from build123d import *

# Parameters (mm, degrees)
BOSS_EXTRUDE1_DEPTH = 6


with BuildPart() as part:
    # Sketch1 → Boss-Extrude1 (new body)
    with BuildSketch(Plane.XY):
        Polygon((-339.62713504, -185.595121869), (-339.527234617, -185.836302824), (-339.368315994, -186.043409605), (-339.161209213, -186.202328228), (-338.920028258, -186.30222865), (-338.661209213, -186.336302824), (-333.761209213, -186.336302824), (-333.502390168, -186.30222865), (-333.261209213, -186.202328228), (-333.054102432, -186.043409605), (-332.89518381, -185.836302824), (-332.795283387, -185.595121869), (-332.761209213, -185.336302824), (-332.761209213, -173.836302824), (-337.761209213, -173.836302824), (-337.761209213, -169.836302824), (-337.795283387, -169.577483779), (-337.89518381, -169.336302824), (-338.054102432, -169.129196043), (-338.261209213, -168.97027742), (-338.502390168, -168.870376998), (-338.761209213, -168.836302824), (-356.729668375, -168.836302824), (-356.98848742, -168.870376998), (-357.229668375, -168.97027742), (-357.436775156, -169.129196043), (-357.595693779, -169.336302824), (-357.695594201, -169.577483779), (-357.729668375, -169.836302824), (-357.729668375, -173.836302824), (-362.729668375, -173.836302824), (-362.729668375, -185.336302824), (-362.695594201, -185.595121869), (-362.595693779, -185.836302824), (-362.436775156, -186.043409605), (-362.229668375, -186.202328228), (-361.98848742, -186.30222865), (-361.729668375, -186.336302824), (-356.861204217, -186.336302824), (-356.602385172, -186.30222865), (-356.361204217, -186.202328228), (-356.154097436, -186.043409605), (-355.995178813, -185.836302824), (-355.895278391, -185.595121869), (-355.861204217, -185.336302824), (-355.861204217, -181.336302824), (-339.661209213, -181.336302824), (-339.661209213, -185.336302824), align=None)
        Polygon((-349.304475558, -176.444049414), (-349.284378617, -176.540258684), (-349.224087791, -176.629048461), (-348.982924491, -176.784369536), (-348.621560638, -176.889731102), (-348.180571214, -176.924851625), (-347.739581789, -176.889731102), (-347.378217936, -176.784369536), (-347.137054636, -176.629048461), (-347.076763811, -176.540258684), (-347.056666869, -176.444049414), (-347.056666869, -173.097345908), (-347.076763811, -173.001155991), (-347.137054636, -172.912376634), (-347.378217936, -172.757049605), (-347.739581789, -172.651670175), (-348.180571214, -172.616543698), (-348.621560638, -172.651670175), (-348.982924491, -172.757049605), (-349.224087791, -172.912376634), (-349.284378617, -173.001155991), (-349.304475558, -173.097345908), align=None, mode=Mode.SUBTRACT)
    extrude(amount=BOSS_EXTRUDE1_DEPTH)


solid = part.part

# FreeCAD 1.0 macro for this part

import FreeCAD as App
import Part
import Sketcher
Q = App.Units.Quantity

doc = App.newDocument("Part")
body = doc.addObject("PartDesign::Body", "Body")

sketch1 = body.newObject("Sketcher::SketchObject", "Sketch")
sketch1.AttachmentSupport = (doc.getObject("XY_Plane"), [""])
sketch1.MapMode = "FlatFace"
sketch1.addGeometry([
    Part.LineSegment(App.Vector(-339.63, -185.6, 0), App.Vector(-339.53, -185.84, 0)),
    Part.LineSegment(App.Vector(-339.53, -185.84, 0), App.Vector(-339.37, -186.04, 0)),
    Part.LineSegment(App.Vector(-339.37, -186.04, 0), App.Vector(-339.16, -186.2, 0)),
    Part.LineSegment(App.Vector(-339.16, -186.2, 0), App.Vector(-338.92, -186.3, 0)),
    Part.LineSegment(App.Vector(-338.92, -186.3, 0), App.Vector(-338.66, -186.34, 0)),
    Part.LineSegment(App.Vector(-338.66, -186.34, 0), App.Vector(-333.76, -186.34, 0)),
    Part.LineSegment(App.Vector(-333.76, -186.34, 0), App.Vector(-333.5, -186.3, 0)),
    Part.LineSegment(App.Vector(-333.5, -186.3, 0), App.Vector(-333.26, -186.2, 0)),
    Part.LineSegment(App.Vector(-333.26, -186.2, 0), App.Vector(-333.05, -186.04, 0)),
    Part.LineSegment(App.Vector(-333.05, -186.04, 0), App.Vector(-332.9, -185.84, 0)),
    Part.LineSegment(App.Vector(-332.9, -185.84, 0), App.Vector(-332.8, -185.6, 0)),
    Part.LineSegment(App.Vector(-332.8, -185.6, 0), App.Vector(-332.76, -185.34, 0)),
    Part.LineSegment(App.Vector(-332.76, -185.34, 0), App.Vector(-332.76, -173.84, 0)),
    Part.LineSegment(App.Vector(-332.76, -173.84, 0), App.Vector(-337.76, -173.84, 0)),
    Part.LineSegment(App.Vector(-337.76, -173.84, 0), App.Vector(-337.76, -169.84, 0)),
    Part.LineSegment(App.Vector(-337.76, -169.84, 0), App.Vector(-337.8, -169.58, 0)),
    Part.LineSegment(App.Vector(-337.8, -169.58, 0), App.Vector(-337.9, -169.34, 0)),
    Part.LineSegment(App.Vector(-337.9, -169.34, 0), App.Vector(-338.05, -169.13, 0)),
    Part.LineSegment(App.Vector(-338.05, -169.13, 0), App.Vector(-338.26, -168.97, 0)),
    Part.LineSegment(App.Vector(-338.26, -168.97, 0), App.Vector(-338.5, -168.87, 0)),
    Part.LineSegment(App.Vector(-338.5, -168.87, 0), App.Vector(-338.76, -168.84, 0)),
    Part.LineSegment(App.Vector(-338.76, -168.84, 0), App.Vector(-356.73, -168.84, 0)),
    Part.LineSegment(App.Vector(-356.73, -168.84, 0), App.Vector(-356.99, -168.87, 0)),
    Part.LineSegment(App.Vector(-356.99, -168.87, 0), App.Vector(-357.23, -168.97, 0)),
    Part.LineSegment(App.Vector(-357.23, -168.97, 0), App.Vector(-357.44, -169.13, 0)),
    Part.LineSegment(App.Vector(-357.44, -169.13, 0), App.Vector(-357.6, -169.34, 0)),
    Part.LineSegment(App.Vector(-357.6, -169.34, 0), App.Vector(-357.7, -169.58, 0)),
    Part.LineSegment(App.Vector(-357.7, -169.58, 0), App.Vector(-357.73, -169.84, 0)),
    Part.LineSegment(App.Vector(-357.73, -169.84, 0), App.Vector(-357.73, -173.84, 0)),
    Part.LineSegment(App.Vector(-357.73, -173.84, 0), App.Vector(-362.73, -173.84, 0)),
    Part.LineSegment(App.Vector(-362.73, -173.84, 0), App.Vector(-362.73, -185.34, 0)),
    Part.LineSegment(App.Vector(-362.73, -185.34, 0), App.Vector(-362.7, -185.6, 0)),
    Part.LineSegment(App.Vector(-362.7, -185.6, 0), App.Vector(-362.6, -185.84, 0)),
    Part.LineSegment(App.Vector(-362.6, -185.84, 0), App.Vector(-362.44, -186.04, 0)),
    Part.LineSegment(App.Vector(-362.44, -186.04, 0), App.Vector(-362.23, -186.2, 0)),
    Part.LineSegment(App.Vector(-362.23, -186.2, 0), App.Vector(-361.99, -186.3, 0)),
    Part.LineSegment(App.Vector(-361.99, -186.3, 0), App.Vector(-361.73, -186.34, 0)),
    Part.LineSegment(App.Vector(-361.73, -186.34, 0), App.Vector(-356.86, -186.34, 0)),
    Part.LineSegment(App.Vector(-356.86, -186.34, 0), App.Vector(-356.6, -186.3, 0)),
    Part.LineSegment(App.Vector(-356.6, -186.3, 0), App.Vector(-356.36, -186.2, 0)),
    Part.LineSegment(App.Vector(-356.36, -186.2, 0), App.Vector(-356.15, -186.04, 0)),
    Part.LineSegment(App.Vector(-356.15, -186.04, 0), App.Vector(-356, -185.84, 0)),
    Part.LineSegment(App.Vector(-356, -185.84, 0), App.Vector(-355.9, -185.6, 0)),
    Part.LineSegment(App.Vector(-355.9, -185.6, 0), App.Vector(-355.86, -185.34, 0)),
    Part.LineSegment(App.Vector(-355.86, -185.34, 0), App.Vector(-355.86, -181.34, 0)),
    Part.LineSegment(App.Vector(-355.86, -181.34, 0), App.Vector(-339.66, -181.34, 0)),
    Part.LineSegment(App.Vector(-339.66, -181.34, 0), App.Vector(-339.66, -185.34, 0)),
    Part.LineSegment(App.Vector(-339.66, -185.34, 0), App.Vector(-339.63, -185.6, 0)),
    Part.LineSegment(App.Vector(-349.28, -176.54, 0), App.Vector(-349.3, -176.44, 0)),
    Part.LineSegment(App.Vector(-349.3, -176.44, 0), App.Vector(-349.3, -173.1, 0)),
    Part.LineSegment(App.Vector(-349.3, -173.1, 0), App.Vector(-349.28, -173, 0)),
    Part.LineSegment(App.Vector(-349.28, -173, 0), App.Vector(-349.22, -172.91, 0)),
    Part.LineSegment(App.Vector(-349.22, -172.91, 0), App.Vector(-348.98, -172.76, 0)),
    Part.LineSegment(App.Vector(-348.98, -172.76, 0), App.Vector(-348.62, -172.65, 0)),
    Part.LineSegment(App.Vector(-348.62, -172.65, 0), App.Vector(-348.18, -172.62, 0)),
    Part.LineSegment(App.Vector(-348.18, -172.62, 0), App.Vector(-347.74, -172.65, 0)),
    Part.LineSegment(App.Vector(-347.74, -172.65, 0), App.Vector(-347.38, -172.76, 0)),
    Part.LineSegment(App.Vector(-347.38, -172.76, 0), App.Vector(-347.14, -172.91, 0)),
    Part.LineSegment(App.Vector(-347.14, -172.91, 0), App.Vector(-347.08, -173, 0)),
    Part.LineSegment(App.Vector(-347.08, -173, 0), App.Vector(-347.06, -173.1, 0)),
    Part.LineSegment(App.Vector(-347.06, -173.1, 0), App.Vector(-347.06, -176.44, 0)),
    Part.LineSegment(App.Vector(-347.06, -176.44, 0), App.Vector(-347.08, -176.54, 0)),
    Part.LineSegment(App.Vector(-347.08, -176.54, 0), App.Vector(-347.14, -176.63, 0)),
    Part.LineSegment(App.Vector(-347.14, -176.63, 0), App.Vector(-347.38, -176.78, 0)),
    Part.LineSegment(App.Vector(-347.38, -176.78, 0), App.Vector(-347.74, -176.89, 0)),
    Part.LineSegment(App.Vector(-347.74, -176.89, 0), App.Vector(-348.18, -176.92, 0)),
    Part.LineSegment(App.Vector(-348.18, -176.92, 0), App.Vector(-348.62, -176.89, 0)),
    Part.LineSegment(App.Vector(-348.62, -176.89, 0), App.Vector(-348.98, -176.78, 0)),
    Part.LineSegment(App.Vector(-348.98, -176.78, 0), App.Vector(-349.22, -176.63, 0)),
    Part.LineSegment(App.Vector(-349.22, -176.63, 0), App.Vector(-349.28, -176.54, 0)),
], False)
sketch1.addConstraint([
    Sketcher.Constraint("Coincident", 0, 2, 1, 1),
    Sketcher.Constraint("Coincident", 1, 2, 2, 1),
    Sketcher.Constraint("Coincident", 2, 2, 3, 1),
    Sketcher.Constraint("Coincident", 3, 2, 4, 1),
    Sketcher.Constraint("Coincident", 4, 2, 5, 1),
    Sketcher.Constraint("Coincident", 5, 2, 6, 1),
    Sketcher.Constraint("Coincident", 6, 2, 7, 1),
    Sketcher.Constraint("Coincident", 7, 2, 8, 1),
    Sketcher.Constraint("Coincident", 8, 2, 9, 1),
    Sketcher.Constraint("Coincident", 9, 2, 10, 1),
    Sketcher.Constraint("Coincident", 10, 2, 11, 1),
    Sketcher.Constraint("Coincident", 11, 2, 12, 1),
    Sketcher.Constraint("Coincident", 12, 2, 13, 1),
    Sketcher.Constraint("Coincident", 13, 2, 14, 1),
    Sketcher.Constraint("Coincident", 14, 2, 15, 1),
    Sketcher.Constraint("Coincident", 15, 2, 16, 1),
    Sketcher.Constraint("Coincident", 16, 2, 17, 1),
    Sketcher.Constraint("Coincident", 17, 2, 18, 1),
    Sketcher.Constraint("Coincident", 18, 2, 19, 1),
    Sketcher.Constraint("Coincident", 19, 2, 20, 1),
    Sketcher.Constraint("Coincident", 20, 2, 21, 1),
    Sketcher.Constraint("Coincident", 21, 2, 22, 1),
    Sketcher.Constraint("Coincident", 22, 2, 23, 1),
    Sketcher.Constraint("Coincident", 23, 2, 24, 1),
    Sketcher.Constraint("Coincident", 24, 2, 25, 1),
    Sketcher.Constraint("Coincident", 25, 2, 26, 1),
    Sketcher.Constraint("Coincident", 26, 2, 27, 1),
    Sketcher.Constraint("Coincident", 27, 2, 28, 1),
    Sketcher.Constraint("Coincident", 28, 2, 29, 1),
    Sketcher.Constraint("Coincident", 29, 2, 30, 1),
    Sketcher.Constraint("Coincident", 30, 2, 31, 1),
    Sketcher.Constraint("Coincident", 31, 2, 32, 1),
    Sketcher.Constraint("Coincident", 32, 2, 33, 1),
    Sketcher.Constraint("Coincident", 33, 2, 34, 1),
    Sketcher.Constraint("Coincident", 34, 2, 35, 1),
    Sketcher.Constraint("Coincident", 35, 2, 36, 1),
    Sketcher.Constraint("Coincident", 36, 2, 37, 1),
    Sketcher.Constraint("Coincident", 37, 2, 38, 1),
    Sketcher.Constraint("Coincident", 38, 2, 39, 1),
    Sketcher.Constraint("Coincident", 39, 2, 40, 1),
    Sketcher.Constraint("Coincident", 40, 2, 41, 1),
    Sketcher.Constraint("Coincident", 41, 2, 42, 1),
    Sketcher.Constraint("Coincident", 42, 2, 43, 1),
    Sketcher.Constraint("Coincident", 43, 2, 44, 1),
    Sketcher.Constraint("Coincident", 44, 2, 45, 1),
    Sketcher.Constraint("Coincident", 45, 2, 46, 1),
    Sketcher.Constraint("Coincident", 46, 2, 47, 1),
    Sketcher.Constraint("Coincident", 47, 2, 0, 1),
    Sketcher.Constraint("Coincident", 48, 2, 49, 1),
    Sketcher.Constraint("Coincident", 49, 2, 50, 1),
    Sketcher.Constraint("Coincident", 50, 2, 51, 1),
    Sketcher.Constraint("Coincident", 51, 2, 52, 1),
    Sketcher.Constraint("Coincident", 52, 2, 53, 1),
    Sketcher.Constraint("Coincident", 53, 2, 54, 1),
    Sketcher.Constraint("Coincident", 54, 2, 55, 1),
    Sketcher.Constraint("Coincident", 55, 2, 56, 1),
    Sketcher.Constraint("Coincident", 56, 2, 57, 1),
    Sketcher.Constraint("Coincident", 57, 2, 58, 1),
    Sketcher.Constraint("Coincident", 58, 2, 59, 1),
    Sketcher.Constraint("Coincident", 59, 2, 60, 1),
    Sketcher.Constraint("Coincident", 60, 2, 61, 1),
    Sketcher.Constraint("Coincident", 61, 2, 62, 1),
    Sketcher.Constraint("Coincident", 62, 2, 63, 1),
    Sketcher.Constraint("Coincident", 63, 2, 64, 1),
    Sketcher.Constraint("Coincident", 64, 2, 65, 1),
    Sketcher.Constraint("Coincident", 65, 2, 66, 1),
    Sketcher.Constraint("Coincident", 66, 2, 67, 1),
    Sketcher.Constraint("Coincident", 67, 2, 68, 1),
    Sketcher.Constraint("Coincident", 68, 2, 69, 1),
    Sketcher.Constraint("Coincident", 69, 2, 48, 1),
    Sketcher.Constraint("Horizontal", 5),
    Sketcher.Constraint("Vertical", 12),
    Sketcher.Constraint("Horizontal", 13),
    Sketcher.Constraint("Vertical", 14),
    Sketcher.Constraint("Horizontal", 21),
    Sketcher.Constraint("Vertical", 28),
    Sketcher.Constraint("Horizontal", 29),
    Sketcher.Constraint("Vertical", 30),
    Sketcher.Constraint("Horizontal", 37),
    Sketcher.Constraint("Vertical", 44),
    Sketcher.Constraint("Horizontal", 45),
    Sketcher.Constraint("Vertical", 46),
    Sketcher.Constraint("Vertical", 49),
    Sketcher.Constraint("Vertical", 60),
    Sketcher.Constraint("Perpendicular", 0, 7),
    Sketcher.Constraint("Perpendicular", 1, 8),
    Sketcher.Constraint("Perpendicular", 2, 9),
    Sketcher.Constraint("Perpendicular", 3, 10),
    Sketcher.Constraint("Perpendicular", 4, 11),
    Sketcher.Constraint("Perpendicular", 6, 15),
    Sketcher.Constraint("Perpendicular", 7, 16),
    Sketcher.Constraint("Perpendicular", 8, 17),
    Sketcher.Constraint("Perpendicular", 9, 18),
    Sketcher.Constraint("Perpendicular", 10, 19),
    Sketcher.Constraint("Perpendicular", 11, 20),
    Sketcher.Constraint("Perpendicular", 15, 22),
    Sketcher.Constraint("Perpendicular", 16, 23),
    Sketcher.Constraint("Perpendicular", 17, 24),
    Sketcher.Constraint("Perpendicular", 18, 25),
    Sketcher.Constraint("Perpendicular", 19, 26),
    Sketcher.Constraint("Perpendicular", 20, 27),
    Sketcher.Constraint("Perpendicular", 22, 31),
    Sketcher.Constraint("Perpendicular", 23, 32),
    Sketcher.Constraint("Perpendicular", 24, 33),
    Sketcher.Constraint("Perpendicular", 25, 34),
    Sketcher.Constraint("Perpendicular", 26, 35),
    Sketcher.Constraint("Perpendicular", 27, 36),
    Sketcher.Constraint("Perpendicular", 31, 38),
    Sketcher.Constraint("Perpendicular", 32, 39),
    Sketcher.Constraint("Perpendicular", 33, 40),
    Sketcher.Constraint("Perpendicular", 34, 41),
    Sketcher.Constraint("Perpendicular", 35, 42),
    Sketcher.Constraint("Perpendicular", 36, 43),
    Sketcher.Constraint("Perpendicular", 38, 47),
    Sketcher.Constraint("Horizontal", 3, 2, 6, 2),
    Sketcher.Constraint("Horizontal", 2, 2, 7, 2),
    Sketcher.Constraint("Horizontal", 1, 2, 8, 2),
    Sketcher.Constraint("Horizontal", 0, 2, 9, 2),
    Sketcher.Constraint("Horizontal", 19, 2, 22, 2),
    Sketcher.Constraint("Horizontal", 18, 2, 23, 2),
    Sketcher.Constraint("Horizontal", 17, 2, 24, 2),
    Sketcher.Constraint("Horizontal", 16, 2, 25, 2),
    Sketcher.Constraint("Horizontal", 15, 2, 26, 2),
    Sketcher.Constraint("Horizontal", 14, 2, 27, 2),
    Sketcher.Constraint("Horizontal", 13, 2, 28, 2),
    Sketcher.Constraint("Horizontal", 11, 2, 30, 2),
    Sketcher.Constraint("Horizontal", 10, 2, 31, 2),
    Sketcher.Constraint("Horizontal", 9, 2, 32, 2),
    Sketcher.Constraint("Horizontal", 8, 2, 33, 2),
    Sketcher.Constraint("Horizontal", 7, 2, 34, 2),
    Sketcher.Constraint("Horizontal", 6, 2, 35, 2),
    Sketcher.Constraint("Horizontal", 5, 2, 36, 2),
    Sketcher.Constraint("Horizontal", 35, 2, 38, 2),
    Sketcher.Constraint("Horizontal", 34, 2, 39, 2),
    Sketcher.Constraint("Horizontal", 33, 2, 40, 2),
    Sketcher.Constraint("Horizontal", 32, 2, 41, 2),
    Sketcher.Constraint("Horizontal", 31, 2, 42, 2),
    Sketcher.Constraint("Horizontal", 30, 2, 43, 2),
    Sketcher.Constraint("Horizontal", 43, 2, 46, 2),
    Sketcher.Constraint("Horizontal", 42, 2, 47, 2),
    Sketcher.Constraint("Horizontal", 53, 2, 55, 2),
    Sketcher.Constraint("Horizontal", 52, 2, 56, 2),
    Sketcher.Constraint("Horizontal", 51, 2, 57, 2),
    Sketcher.Constraint("Horizontal", 50, 2, 58, 2),
    Sketcher.Constraint("Horizontal", 49, 2, 59, 2),
    Sketcher.Constraint("Horizontal", 48, 2, 60, 2),
    Sketcher.Constraint("Horizontal", 64, 2, 66, 2),
    Sketcher.Constraint("Horizontal", 63, 2, 67, 2),
    Sketcher.Constraint("Horizontal", 62, 2, 68, 2),
    Sketcher.Constraint("Horizontal", 61, 2, 69, 2),
    Sketcher.Constraint("Vertical", 58, 2, 61, 2),
    Sketcher.Constraint("Vertical", 57, 2, 62, 2),
    Sketcher.Constraint("Vertical", 56, 2, 63, 2),
    Sketcher.Constraint("Vertical", 55, 2, 64, 2),
    Sketcher.Constraint("Vertical", 54, 2, 65, 2),
    Sketcher.Constraint("Vertical", 53, 2, 66, 2),
    Sketcher.Constraint("Vertical", 52, 2, 67, 2),
    Sketcher.Constraint("Vertical", 51, 2, 68, 2),
    Sketcher.Constraint("Vertical", 50, 2, 69, 2),
    Sketcher.Constraint("Equal", 13, 29),
    Sketcher.Constraint("Equal", 28, 44),
    Sketcher.Constraint("Equal", 0, 1),
    Sketcher.Constraint("Equal", 1, 2),
    Sketcher.Constraint("Equal", 2, 3),
    Sketcher.Constraint("Equal", 3, 4),
    Sketcher.Constraint("Equal", 4, 6),
    Sketcher.Constraint("Equal", 6, 7),
    Sketcher.Constraint("Equal", 7, 8),
    Sketcher.Constraint("Equal", 10, 11),
    Sketcher.Constraint("Equal", 11, 15),
    Sketcher.Constraint("Equal", 15, 16),
    Sketcher.Constraint("Equal", 16, 17),
    Sketcher.Constraint("Equal", 17, 18),
    Sketcher.Constraint("Equal", 18, 19),
    Sketcher.Constraint("Equal", 19, 20),
    Sketcher.Constraint("Equal", 54, 55),
    Sketcher.Constraint("Equal", 53, 56),
    Sketcher.Constraint("Equal", 52, 57),
    Sketcher.Constraint("Equal", 51, 58),
    Sketcher.Constraint("Equal", 50, 59),
    Sketcher.Constraint("Equal", 55, 65),
    Sketcher.Constraint("DistanceX", 13, 2, 13, 1, 5.0),
    Sketcher.Constraint("DistanceY", 14, 1, 14, 2, 4.0),
    Sketcher.Constraint("DistanceX", 5, 1, 5, 2, 4.9),
    Sketcher.Constraint("DistanceY", 12, 1, 12, 2, 11.5),
    Sketcher.Constraint("Angle", 0, Q("-67.5 deg")),
    Sketcher.Constraint("Angle", 1, Q("-52.5 deg")),
    Sketcher.Constraint("Angle", 4, Q("-7.5 deg")),
    Sketcher.Constraint("DistanceX", 21, 2, 21, 1, 17.968459),
    Sketcher.Constraint("Distance", 64, 0.376411),
    Sketcher.Constraint("DistanceX", 37, 1, 37, 2, 4.868464),
    Sketcher.Constraint("DistanceX", 45, 1, 45, 2, 16.199995),
    Sketcher.Constraint("DistanceY", 49, 1, 49, 2, 3.346704),
    Sketcher.Constraint("DistanceY", 1, 2, -1, 1, 186.04341),
    Sketcher.Constraint("DistanceX", 2, 2, -1, 1, 339.161209),
    Sketcher.Constraint("DistanceY", 48, 2, -1, 1, 176.444049),
    Sketcher.Constraint("DistanceX", 50, 2, -1, 1, 349.284379),
    Sketcher.Constraint("DistanceY", 52, 2, -1, 1, 172.75705),
    Sketcher.Constraint("DistanceX", 53, 2, -1, 1, 348.621561),
    Sketcher.Constraint("DistanceY", 53, 2, -1, 1, 172.65167),
    Sketcher.Constraint("DistanceX", 54, 2, -1, 1, 348.180571),
    Sketcher.Constraint("DistanceY", 61, 2, -1, 1, 176.540259),
    Sketcher.Constraint("DistanceY", 62, 2, -1, 1, 176.629048),
    Sketcher.Constraint("DistanceY", 63, 2, -1, 1, 176.78437),
    Sketcher.Constraint("DistanceY", 64, 2, -1, 1, 176.889731),
    Sketcher.Constraint("DistanceY", 65, 2, -1, 1, 176.924852),
    Sketcher.Constraint("Distance", 48, 0.098286),
    Sketcher.Constraint("Distance", 50, 0.098267),
    Sketcher.Constraint("Distance", 51, 0.107316),
    Sketcher.Constraint("Distance", 52, 0.286856),
])
pad1 = body.newObject("PartDesign::Pad", "Pad")
pad1.Profile = sketch1
pad1.Length = 6

doc.recompute()
